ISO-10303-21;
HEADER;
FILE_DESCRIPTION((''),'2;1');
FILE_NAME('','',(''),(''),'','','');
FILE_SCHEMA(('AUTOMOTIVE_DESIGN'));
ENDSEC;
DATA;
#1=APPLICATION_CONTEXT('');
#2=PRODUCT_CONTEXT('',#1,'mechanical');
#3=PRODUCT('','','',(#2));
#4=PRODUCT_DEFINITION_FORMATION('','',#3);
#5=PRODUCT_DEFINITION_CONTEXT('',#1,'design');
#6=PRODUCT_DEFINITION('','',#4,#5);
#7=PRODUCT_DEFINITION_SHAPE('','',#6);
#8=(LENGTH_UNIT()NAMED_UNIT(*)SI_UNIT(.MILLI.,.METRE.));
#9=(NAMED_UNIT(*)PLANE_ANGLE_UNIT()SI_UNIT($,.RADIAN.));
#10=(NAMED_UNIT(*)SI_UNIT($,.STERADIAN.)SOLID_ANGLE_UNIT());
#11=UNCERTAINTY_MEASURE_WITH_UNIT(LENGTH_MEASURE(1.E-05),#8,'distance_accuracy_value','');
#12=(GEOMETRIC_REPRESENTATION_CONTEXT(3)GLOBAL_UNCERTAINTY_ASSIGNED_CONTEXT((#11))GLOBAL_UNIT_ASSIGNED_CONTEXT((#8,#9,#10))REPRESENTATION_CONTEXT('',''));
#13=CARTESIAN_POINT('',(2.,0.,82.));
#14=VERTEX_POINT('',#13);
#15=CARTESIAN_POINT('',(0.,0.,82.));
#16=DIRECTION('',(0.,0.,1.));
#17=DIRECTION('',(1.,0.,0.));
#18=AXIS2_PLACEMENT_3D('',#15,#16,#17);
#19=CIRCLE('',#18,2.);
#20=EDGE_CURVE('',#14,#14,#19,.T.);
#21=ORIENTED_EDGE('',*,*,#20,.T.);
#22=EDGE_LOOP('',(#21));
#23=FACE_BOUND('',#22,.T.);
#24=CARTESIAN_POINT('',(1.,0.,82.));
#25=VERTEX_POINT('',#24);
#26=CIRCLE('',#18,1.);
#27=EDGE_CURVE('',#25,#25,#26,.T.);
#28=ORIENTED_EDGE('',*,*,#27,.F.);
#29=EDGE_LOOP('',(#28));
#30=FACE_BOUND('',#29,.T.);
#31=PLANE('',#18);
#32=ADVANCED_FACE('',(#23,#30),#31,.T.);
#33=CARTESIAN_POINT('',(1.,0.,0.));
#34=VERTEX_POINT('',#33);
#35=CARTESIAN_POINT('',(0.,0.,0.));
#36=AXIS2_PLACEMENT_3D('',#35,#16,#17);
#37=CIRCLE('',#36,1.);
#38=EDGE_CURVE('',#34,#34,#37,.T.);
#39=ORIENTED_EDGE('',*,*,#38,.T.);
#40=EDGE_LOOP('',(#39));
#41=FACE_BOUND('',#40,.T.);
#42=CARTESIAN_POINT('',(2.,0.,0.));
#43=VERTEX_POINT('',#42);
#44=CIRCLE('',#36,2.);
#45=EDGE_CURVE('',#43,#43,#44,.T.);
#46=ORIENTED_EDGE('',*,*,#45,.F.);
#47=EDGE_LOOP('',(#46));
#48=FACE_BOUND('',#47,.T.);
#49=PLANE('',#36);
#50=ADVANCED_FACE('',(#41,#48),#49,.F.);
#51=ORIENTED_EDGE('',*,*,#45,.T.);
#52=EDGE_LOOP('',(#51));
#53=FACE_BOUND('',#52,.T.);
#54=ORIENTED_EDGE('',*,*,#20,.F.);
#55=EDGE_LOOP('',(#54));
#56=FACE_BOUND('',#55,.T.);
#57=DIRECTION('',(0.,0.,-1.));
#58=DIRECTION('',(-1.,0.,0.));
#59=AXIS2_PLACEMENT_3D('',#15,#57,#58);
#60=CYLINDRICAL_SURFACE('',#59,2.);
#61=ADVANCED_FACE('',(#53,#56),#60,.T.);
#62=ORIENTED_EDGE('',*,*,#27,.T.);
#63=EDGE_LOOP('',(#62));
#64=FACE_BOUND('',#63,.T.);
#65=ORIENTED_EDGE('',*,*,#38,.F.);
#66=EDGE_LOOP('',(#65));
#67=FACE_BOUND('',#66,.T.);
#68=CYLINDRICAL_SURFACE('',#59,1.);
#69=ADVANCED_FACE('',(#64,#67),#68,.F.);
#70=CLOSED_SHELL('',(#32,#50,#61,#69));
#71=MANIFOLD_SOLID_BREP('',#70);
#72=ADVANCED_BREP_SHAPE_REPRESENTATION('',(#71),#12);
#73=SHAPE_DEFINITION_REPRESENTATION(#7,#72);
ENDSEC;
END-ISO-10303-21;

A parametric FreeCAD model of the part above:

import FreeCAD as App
import Part
import Sketcher

V = App.Vector

doc = App.newDocument("Part")
body = doc.addObject("PartDesign::Body", "Body")

sketch1 = body.newObject("Sketcher::SketchObject", "Sketch")
sketch1.AttachmentSupport = (doc.getObject("XY_Plane"), [""])
sketch1.MapMode = "FlatFace"
sketch1.addGeometry(Part.Circle(V(0, 0, 0), V(0, 0, 1), 2), False)
sketch1.addGeometry(Part.Circle(V(0, 0, 0), V(0, 0, 1), 1), False)
sketch1.addConstraint(Sketcher.Constraint("Coincident", 0, 3, -1, 1))
sketch1.addConstraint(Sketcher.Constraint("Coincident", 1, 3, -1, 1))
sketch1.addConstraint(Sketcher.Constraint("Diameter", 0, 4.0))
sketch1.addConstraint(Sketcher.Constraint("Diameter", 1, 2.0))
pad1 = body.newObject("PartDesign::Pad", "Pad")
pad1.Profile = sketch1
pad1.Length = 82

doc.recompute()
